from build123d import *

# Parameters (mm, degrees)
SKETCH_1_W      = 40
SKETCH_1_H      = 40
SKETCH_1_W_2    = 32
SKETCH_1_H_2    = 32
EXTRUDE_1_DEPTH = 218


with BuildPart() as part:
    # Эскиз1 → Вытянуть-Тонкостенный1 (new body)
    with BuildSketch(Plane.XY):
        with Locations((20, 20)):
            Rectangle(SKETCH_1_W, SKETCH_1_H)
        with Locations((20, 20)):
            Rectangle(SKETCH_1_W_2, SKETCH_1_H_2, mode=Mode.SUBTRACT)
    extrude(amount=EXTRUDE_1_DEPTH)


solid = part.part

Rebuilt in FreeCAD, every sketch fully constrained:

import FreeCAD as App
import Part
import Sketcher


def add_polygon(sketch, points):
    """Adds a closed chain of lines whose ends are joined by coincident constraints."""
    first, n = sketch.GeometryCount, len(points)
    for a, b in zip(points, points[1:] + points[:1]):
        sketch.addGeometry(Part.LineSegment(App.Vector(*a, 0), App.Vector(*b, 0)), False)
    for i in range(n):
        sketch.addConstraint(Sketcher.Constraint("Coincident", first + i, 2, first + (i + 1) % n, 1))

doc = App.newDocument("Part")
params = doc.addObject("Spreadsheet::Sheet", "Params")
for row, (alias, value) in enumerate([
    ("sketch1_width", "40 mm"),
    ("sketch1_width2", "32 mm"),
    ("pad1_length", "218 mm"),
], start=1):
    params.set(f"A{row}", alias)
    params.set(f"B{row}", "=" + value)
    params.setAlias(f"B{row}", alias)

body = doc.addObject("PartDesign::Body", "Body")

sketch1 = body.newObject("Sketcher::SketchObject", "Sketch")
sketch1.AttachmentSupport = (doc.getObject("XY_Plane"), [""])
sketch1.MapMode = "FlatFace"
add_polygon(sketch1, [(0, 40), (0, 0), (40, 0), (40, 40)])
add_polygon(sketch1, [(36, 4), (4, 4), (4, 36), (36, 36)])
sketch1.addConstraint(Sketcher.Constraint("Vertical", 0))
sketch1.addConstraint(Sketcher.Constraint("Horizontal", 1))
sketch1.addConstraint(Sketcher.Constraint("Vertical", 2))
sketch1.addConstraint(Sketcher.Constraint("Horizontal", 3))
sketch1.addConstraint(Sketcher.Constraint("Horizontal", 4))
sketch1.addConstraint(Sketcher.Constraint("Vertical", 5))
sketch1.addConstraint(Sketcher.Constraint("Horizontal", 6))
sketch1.addConstraint(Sketcher.Constraint("Vertical", 7))
sketch1.addConstraint(Sketcher.Constraint("Coincident", 0, 2, -1, 1))
sketch1.addConstraint(Sketcher.Constraint("Equal", 3, 0))
sketch1.addConstraint(Sketcher.Constraint("Equal", 6, 5))
sketch1.addConstraint(Sketcher.Constraint("DistanceX", 1, 1, 1, 2, 40.0))
sketch1.addConstraint(Sketcher.Constraint("DistanceX", 4, 2, 4, 1, 32.0))
sketch1.addConstraint(Sketcher.Constraint("DistanceX", -1, 1, 4, 2, 4.0))
sketch1.addConstraint(Sketcher.Constraint("DistanceY", -1, 1, 4, 2, 4.0))
sketch1.setExpression("Constraints[19]", "Params.sketch1_width")
sketch1.setExpression("Constraints[20]", "Params.sketch1_width2")
pad1 = body.newObject("PartDesign::Pad", "Pad")
pad1.Profile = sketch1
pad1.setExpression("Length", "Params.pad1_length")

doc.recompute()
